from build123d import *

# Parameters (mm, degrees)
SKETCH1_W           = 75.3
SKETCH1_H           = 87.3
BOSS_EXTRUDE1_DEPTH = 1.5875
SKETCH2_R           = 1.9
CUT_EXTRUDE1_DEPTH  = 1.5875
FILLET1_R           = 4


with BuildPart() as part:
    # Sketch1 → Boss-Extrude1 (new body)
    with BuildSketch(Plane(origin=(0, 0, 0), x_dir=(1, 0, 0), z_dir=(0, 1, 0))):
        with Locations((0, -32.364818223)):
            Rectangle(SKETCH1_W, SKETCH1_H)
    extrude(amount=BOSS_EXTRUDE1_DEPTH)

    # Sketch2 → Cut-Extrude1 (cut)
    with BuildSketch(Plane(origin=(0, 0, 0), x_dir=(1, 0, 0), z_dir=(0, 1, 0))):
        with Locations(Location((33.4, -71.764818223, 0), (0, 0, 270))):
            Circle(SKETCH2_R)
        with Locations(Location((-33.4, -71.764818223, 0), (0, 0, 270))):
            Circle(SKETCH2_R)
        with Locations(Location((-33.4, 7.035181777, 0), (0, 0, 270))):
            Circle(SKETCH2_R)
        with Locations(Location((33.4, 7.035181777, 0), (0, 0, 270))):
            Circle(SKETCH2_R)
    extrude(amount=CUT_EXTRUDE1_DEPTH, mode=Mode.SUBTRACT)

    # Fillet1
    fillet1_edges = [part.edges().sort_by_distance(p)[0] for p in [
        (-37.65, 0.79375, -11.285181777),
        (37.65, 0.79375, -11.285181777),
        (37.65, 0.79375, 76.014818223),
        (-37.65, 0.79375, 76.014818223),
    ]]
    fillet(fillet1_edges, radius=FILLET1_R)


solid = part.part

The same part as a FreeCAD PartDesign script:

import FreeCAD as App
import Part
import Sketcher
from FreeCAD import Vector


def edges_at(feature, points):
    """Names of the edges that pass closest to the given points."""
    edges = feature.Shape.Edges
    near = lambda p: min(range(len(edges)), key=lambda i: edges[i].distToShape(Part.Vertex(*p))[0])
    return sorted({f"Edge{near(p) + 1}" for p in points})


def add_polygon(sketch, points):
    """Adds a closed chain of lines whose ends are joined by coincident constraints."""
    first, n = sketch.GeometryCount, len(points)
    for a, b in zip(points, points[1:] + points[:1]):
        sketch.addGeometry(Part.LineSegment(App.Vector(*a, 0), App.Vector(*b, 0)), False)
    for i in range(n):
        sketch.addConstraint(Sketcher.Constraint("Coincident", first + i, 2, first + (i + 1) % n, 1))

doc = App.newDocument("Part")
params = doc.addObject("Spreadsheet::Sheet", "Params")
for row, (alias, value) in enumerate([
    ("sketch1_width", "75.3 mm"),
    ("sketch1_height", "87.3 mm"),
    ("pad1_length", "1.5875 mm"),
    ("sketch2_diameter", "3.8 mm"),
    ("pocket1_length", "1.5875 mm"),
    ("fillet_radius", "4 mm"),
], start=1):
    params.set(f"A{row}", alias)
    params.set(f"B{row}", "=" + value)
    params.setAlias(f"B{row}", alias)

body = doc.addObject("PartDesign::Body", "Body")

sketch1 = body.newObject("Sketcher::SketchObject", "Sketch")
sketch1.AttachmentSupport = (doc.getObject("XZ_Plane"), [""])
sketch1.MapMode = "FlatFace"
add_polygon(sketch1, [(-38, -11), (-38, 76), (38, 76), (38, -11)])
sketch1.addConstraint([
    Sketcher.Constraint("Vertical", 0),
    Sketcher.Constraint("Horizontal", 1),
    Sketcher.Constraint("Vertical", 2),
    Sketcher.Constraint("Horizontal", 3),
    Sketcher.Constraint("DistanceX", 1, 1, 1, 2, 75.3),
    Sketcher.Constraint("DistanceY", 0, 1, 0, 2, 87.3),
    Sketcher.Constraint("DistanceX", 0, 2, -1, 1, 37.65),
    Sketcher.Constraint("DistanceY", -1, 1, 0, 2, 76.014818),
])
sketch1.setExpression("Constraints[8]", "Params.sketch1_width")
sketch1.setExpression("Constraints[9]", "Params.sketch1_height")
pad1 = body.newObject("PartDesign::Pad", "Pad")
pad1.Profile = sketch1
pad1.setExpression("Length", "Params.pad1_length")
pad1.Reversed = True

sketch2 = body.newObject("Sketcher::SketchObject", "Sketch001")
sketch2.AttachmentSupport = (doc.getObject("XZ_Plane"), [""])
sketch2.MapMode = "FlatFace"
sketch2.addGeometry([
    Part.Circle(Vector(33.4, 71.8, 0), Vector(0, 0, 1), 1.9),
    Part.Circle(Vector(-33.4, 71.8, 0), Vector(0, 0, 1), 1.9),
    Part.Circle(Vector(-33.4, -7, 0), Vector(0, 0, 1), 1.9),
    Part.Circle(Vector(33.4, -7, 0), Vector(0, 0, 1), 1.9),
], False)
sketch2.addConstraint([
    Sketcher.Constraint("Equal", 0, 1),
    Sketcher.Constraint("Equal", 1, 2),
    Sketcher.Constraint("Equal", 2, 3),
    Sketcher.Constraint("Symmetric", 0, 3, 1, 3, -2),
    Sketcher.Constraint("Symmetric", 2, 3, 3, 3, -2),
    Sketcher.Constraint("Vertical", 1, 3, 2, 3),
    Sketcher.Constraint("Diameter", 0, 3.8),
    Sketcher.Constraint("DistanceX", -1, 1, 0, 3, 33.4),
    Sketcher.Constraint("DistanceY", 2, 3, 1, 3, 78.8),
    Sketcher.Constraint("DistanceY", -1, 1, 0, 3, 71.764818),
])
sketch2.setExpression("Constraints[6]", "Params.sketch2_diameter")
pocket1 = body.newObject("PartDesign::Pocket", "Pocket")
pocket1.Profile = sketch2
pocket1.setExpression("Length", "Params.pocket1_length")
doc.recompute()

fillet = body.newObject("PartDesign::Fillet", "Fillet")
fillet.Base = (pocket1, edges_at(pocket1, [
    (-37.65, 0.794, -11.285),
    (37.65, 0.794, -11.285),
    (37.65, 0.794, 76.015),
    (-37.65, 0.794, 76.015),
]))
fillet.setExpression("Radius", "Params.fillet_radius")

doc.recompute()
